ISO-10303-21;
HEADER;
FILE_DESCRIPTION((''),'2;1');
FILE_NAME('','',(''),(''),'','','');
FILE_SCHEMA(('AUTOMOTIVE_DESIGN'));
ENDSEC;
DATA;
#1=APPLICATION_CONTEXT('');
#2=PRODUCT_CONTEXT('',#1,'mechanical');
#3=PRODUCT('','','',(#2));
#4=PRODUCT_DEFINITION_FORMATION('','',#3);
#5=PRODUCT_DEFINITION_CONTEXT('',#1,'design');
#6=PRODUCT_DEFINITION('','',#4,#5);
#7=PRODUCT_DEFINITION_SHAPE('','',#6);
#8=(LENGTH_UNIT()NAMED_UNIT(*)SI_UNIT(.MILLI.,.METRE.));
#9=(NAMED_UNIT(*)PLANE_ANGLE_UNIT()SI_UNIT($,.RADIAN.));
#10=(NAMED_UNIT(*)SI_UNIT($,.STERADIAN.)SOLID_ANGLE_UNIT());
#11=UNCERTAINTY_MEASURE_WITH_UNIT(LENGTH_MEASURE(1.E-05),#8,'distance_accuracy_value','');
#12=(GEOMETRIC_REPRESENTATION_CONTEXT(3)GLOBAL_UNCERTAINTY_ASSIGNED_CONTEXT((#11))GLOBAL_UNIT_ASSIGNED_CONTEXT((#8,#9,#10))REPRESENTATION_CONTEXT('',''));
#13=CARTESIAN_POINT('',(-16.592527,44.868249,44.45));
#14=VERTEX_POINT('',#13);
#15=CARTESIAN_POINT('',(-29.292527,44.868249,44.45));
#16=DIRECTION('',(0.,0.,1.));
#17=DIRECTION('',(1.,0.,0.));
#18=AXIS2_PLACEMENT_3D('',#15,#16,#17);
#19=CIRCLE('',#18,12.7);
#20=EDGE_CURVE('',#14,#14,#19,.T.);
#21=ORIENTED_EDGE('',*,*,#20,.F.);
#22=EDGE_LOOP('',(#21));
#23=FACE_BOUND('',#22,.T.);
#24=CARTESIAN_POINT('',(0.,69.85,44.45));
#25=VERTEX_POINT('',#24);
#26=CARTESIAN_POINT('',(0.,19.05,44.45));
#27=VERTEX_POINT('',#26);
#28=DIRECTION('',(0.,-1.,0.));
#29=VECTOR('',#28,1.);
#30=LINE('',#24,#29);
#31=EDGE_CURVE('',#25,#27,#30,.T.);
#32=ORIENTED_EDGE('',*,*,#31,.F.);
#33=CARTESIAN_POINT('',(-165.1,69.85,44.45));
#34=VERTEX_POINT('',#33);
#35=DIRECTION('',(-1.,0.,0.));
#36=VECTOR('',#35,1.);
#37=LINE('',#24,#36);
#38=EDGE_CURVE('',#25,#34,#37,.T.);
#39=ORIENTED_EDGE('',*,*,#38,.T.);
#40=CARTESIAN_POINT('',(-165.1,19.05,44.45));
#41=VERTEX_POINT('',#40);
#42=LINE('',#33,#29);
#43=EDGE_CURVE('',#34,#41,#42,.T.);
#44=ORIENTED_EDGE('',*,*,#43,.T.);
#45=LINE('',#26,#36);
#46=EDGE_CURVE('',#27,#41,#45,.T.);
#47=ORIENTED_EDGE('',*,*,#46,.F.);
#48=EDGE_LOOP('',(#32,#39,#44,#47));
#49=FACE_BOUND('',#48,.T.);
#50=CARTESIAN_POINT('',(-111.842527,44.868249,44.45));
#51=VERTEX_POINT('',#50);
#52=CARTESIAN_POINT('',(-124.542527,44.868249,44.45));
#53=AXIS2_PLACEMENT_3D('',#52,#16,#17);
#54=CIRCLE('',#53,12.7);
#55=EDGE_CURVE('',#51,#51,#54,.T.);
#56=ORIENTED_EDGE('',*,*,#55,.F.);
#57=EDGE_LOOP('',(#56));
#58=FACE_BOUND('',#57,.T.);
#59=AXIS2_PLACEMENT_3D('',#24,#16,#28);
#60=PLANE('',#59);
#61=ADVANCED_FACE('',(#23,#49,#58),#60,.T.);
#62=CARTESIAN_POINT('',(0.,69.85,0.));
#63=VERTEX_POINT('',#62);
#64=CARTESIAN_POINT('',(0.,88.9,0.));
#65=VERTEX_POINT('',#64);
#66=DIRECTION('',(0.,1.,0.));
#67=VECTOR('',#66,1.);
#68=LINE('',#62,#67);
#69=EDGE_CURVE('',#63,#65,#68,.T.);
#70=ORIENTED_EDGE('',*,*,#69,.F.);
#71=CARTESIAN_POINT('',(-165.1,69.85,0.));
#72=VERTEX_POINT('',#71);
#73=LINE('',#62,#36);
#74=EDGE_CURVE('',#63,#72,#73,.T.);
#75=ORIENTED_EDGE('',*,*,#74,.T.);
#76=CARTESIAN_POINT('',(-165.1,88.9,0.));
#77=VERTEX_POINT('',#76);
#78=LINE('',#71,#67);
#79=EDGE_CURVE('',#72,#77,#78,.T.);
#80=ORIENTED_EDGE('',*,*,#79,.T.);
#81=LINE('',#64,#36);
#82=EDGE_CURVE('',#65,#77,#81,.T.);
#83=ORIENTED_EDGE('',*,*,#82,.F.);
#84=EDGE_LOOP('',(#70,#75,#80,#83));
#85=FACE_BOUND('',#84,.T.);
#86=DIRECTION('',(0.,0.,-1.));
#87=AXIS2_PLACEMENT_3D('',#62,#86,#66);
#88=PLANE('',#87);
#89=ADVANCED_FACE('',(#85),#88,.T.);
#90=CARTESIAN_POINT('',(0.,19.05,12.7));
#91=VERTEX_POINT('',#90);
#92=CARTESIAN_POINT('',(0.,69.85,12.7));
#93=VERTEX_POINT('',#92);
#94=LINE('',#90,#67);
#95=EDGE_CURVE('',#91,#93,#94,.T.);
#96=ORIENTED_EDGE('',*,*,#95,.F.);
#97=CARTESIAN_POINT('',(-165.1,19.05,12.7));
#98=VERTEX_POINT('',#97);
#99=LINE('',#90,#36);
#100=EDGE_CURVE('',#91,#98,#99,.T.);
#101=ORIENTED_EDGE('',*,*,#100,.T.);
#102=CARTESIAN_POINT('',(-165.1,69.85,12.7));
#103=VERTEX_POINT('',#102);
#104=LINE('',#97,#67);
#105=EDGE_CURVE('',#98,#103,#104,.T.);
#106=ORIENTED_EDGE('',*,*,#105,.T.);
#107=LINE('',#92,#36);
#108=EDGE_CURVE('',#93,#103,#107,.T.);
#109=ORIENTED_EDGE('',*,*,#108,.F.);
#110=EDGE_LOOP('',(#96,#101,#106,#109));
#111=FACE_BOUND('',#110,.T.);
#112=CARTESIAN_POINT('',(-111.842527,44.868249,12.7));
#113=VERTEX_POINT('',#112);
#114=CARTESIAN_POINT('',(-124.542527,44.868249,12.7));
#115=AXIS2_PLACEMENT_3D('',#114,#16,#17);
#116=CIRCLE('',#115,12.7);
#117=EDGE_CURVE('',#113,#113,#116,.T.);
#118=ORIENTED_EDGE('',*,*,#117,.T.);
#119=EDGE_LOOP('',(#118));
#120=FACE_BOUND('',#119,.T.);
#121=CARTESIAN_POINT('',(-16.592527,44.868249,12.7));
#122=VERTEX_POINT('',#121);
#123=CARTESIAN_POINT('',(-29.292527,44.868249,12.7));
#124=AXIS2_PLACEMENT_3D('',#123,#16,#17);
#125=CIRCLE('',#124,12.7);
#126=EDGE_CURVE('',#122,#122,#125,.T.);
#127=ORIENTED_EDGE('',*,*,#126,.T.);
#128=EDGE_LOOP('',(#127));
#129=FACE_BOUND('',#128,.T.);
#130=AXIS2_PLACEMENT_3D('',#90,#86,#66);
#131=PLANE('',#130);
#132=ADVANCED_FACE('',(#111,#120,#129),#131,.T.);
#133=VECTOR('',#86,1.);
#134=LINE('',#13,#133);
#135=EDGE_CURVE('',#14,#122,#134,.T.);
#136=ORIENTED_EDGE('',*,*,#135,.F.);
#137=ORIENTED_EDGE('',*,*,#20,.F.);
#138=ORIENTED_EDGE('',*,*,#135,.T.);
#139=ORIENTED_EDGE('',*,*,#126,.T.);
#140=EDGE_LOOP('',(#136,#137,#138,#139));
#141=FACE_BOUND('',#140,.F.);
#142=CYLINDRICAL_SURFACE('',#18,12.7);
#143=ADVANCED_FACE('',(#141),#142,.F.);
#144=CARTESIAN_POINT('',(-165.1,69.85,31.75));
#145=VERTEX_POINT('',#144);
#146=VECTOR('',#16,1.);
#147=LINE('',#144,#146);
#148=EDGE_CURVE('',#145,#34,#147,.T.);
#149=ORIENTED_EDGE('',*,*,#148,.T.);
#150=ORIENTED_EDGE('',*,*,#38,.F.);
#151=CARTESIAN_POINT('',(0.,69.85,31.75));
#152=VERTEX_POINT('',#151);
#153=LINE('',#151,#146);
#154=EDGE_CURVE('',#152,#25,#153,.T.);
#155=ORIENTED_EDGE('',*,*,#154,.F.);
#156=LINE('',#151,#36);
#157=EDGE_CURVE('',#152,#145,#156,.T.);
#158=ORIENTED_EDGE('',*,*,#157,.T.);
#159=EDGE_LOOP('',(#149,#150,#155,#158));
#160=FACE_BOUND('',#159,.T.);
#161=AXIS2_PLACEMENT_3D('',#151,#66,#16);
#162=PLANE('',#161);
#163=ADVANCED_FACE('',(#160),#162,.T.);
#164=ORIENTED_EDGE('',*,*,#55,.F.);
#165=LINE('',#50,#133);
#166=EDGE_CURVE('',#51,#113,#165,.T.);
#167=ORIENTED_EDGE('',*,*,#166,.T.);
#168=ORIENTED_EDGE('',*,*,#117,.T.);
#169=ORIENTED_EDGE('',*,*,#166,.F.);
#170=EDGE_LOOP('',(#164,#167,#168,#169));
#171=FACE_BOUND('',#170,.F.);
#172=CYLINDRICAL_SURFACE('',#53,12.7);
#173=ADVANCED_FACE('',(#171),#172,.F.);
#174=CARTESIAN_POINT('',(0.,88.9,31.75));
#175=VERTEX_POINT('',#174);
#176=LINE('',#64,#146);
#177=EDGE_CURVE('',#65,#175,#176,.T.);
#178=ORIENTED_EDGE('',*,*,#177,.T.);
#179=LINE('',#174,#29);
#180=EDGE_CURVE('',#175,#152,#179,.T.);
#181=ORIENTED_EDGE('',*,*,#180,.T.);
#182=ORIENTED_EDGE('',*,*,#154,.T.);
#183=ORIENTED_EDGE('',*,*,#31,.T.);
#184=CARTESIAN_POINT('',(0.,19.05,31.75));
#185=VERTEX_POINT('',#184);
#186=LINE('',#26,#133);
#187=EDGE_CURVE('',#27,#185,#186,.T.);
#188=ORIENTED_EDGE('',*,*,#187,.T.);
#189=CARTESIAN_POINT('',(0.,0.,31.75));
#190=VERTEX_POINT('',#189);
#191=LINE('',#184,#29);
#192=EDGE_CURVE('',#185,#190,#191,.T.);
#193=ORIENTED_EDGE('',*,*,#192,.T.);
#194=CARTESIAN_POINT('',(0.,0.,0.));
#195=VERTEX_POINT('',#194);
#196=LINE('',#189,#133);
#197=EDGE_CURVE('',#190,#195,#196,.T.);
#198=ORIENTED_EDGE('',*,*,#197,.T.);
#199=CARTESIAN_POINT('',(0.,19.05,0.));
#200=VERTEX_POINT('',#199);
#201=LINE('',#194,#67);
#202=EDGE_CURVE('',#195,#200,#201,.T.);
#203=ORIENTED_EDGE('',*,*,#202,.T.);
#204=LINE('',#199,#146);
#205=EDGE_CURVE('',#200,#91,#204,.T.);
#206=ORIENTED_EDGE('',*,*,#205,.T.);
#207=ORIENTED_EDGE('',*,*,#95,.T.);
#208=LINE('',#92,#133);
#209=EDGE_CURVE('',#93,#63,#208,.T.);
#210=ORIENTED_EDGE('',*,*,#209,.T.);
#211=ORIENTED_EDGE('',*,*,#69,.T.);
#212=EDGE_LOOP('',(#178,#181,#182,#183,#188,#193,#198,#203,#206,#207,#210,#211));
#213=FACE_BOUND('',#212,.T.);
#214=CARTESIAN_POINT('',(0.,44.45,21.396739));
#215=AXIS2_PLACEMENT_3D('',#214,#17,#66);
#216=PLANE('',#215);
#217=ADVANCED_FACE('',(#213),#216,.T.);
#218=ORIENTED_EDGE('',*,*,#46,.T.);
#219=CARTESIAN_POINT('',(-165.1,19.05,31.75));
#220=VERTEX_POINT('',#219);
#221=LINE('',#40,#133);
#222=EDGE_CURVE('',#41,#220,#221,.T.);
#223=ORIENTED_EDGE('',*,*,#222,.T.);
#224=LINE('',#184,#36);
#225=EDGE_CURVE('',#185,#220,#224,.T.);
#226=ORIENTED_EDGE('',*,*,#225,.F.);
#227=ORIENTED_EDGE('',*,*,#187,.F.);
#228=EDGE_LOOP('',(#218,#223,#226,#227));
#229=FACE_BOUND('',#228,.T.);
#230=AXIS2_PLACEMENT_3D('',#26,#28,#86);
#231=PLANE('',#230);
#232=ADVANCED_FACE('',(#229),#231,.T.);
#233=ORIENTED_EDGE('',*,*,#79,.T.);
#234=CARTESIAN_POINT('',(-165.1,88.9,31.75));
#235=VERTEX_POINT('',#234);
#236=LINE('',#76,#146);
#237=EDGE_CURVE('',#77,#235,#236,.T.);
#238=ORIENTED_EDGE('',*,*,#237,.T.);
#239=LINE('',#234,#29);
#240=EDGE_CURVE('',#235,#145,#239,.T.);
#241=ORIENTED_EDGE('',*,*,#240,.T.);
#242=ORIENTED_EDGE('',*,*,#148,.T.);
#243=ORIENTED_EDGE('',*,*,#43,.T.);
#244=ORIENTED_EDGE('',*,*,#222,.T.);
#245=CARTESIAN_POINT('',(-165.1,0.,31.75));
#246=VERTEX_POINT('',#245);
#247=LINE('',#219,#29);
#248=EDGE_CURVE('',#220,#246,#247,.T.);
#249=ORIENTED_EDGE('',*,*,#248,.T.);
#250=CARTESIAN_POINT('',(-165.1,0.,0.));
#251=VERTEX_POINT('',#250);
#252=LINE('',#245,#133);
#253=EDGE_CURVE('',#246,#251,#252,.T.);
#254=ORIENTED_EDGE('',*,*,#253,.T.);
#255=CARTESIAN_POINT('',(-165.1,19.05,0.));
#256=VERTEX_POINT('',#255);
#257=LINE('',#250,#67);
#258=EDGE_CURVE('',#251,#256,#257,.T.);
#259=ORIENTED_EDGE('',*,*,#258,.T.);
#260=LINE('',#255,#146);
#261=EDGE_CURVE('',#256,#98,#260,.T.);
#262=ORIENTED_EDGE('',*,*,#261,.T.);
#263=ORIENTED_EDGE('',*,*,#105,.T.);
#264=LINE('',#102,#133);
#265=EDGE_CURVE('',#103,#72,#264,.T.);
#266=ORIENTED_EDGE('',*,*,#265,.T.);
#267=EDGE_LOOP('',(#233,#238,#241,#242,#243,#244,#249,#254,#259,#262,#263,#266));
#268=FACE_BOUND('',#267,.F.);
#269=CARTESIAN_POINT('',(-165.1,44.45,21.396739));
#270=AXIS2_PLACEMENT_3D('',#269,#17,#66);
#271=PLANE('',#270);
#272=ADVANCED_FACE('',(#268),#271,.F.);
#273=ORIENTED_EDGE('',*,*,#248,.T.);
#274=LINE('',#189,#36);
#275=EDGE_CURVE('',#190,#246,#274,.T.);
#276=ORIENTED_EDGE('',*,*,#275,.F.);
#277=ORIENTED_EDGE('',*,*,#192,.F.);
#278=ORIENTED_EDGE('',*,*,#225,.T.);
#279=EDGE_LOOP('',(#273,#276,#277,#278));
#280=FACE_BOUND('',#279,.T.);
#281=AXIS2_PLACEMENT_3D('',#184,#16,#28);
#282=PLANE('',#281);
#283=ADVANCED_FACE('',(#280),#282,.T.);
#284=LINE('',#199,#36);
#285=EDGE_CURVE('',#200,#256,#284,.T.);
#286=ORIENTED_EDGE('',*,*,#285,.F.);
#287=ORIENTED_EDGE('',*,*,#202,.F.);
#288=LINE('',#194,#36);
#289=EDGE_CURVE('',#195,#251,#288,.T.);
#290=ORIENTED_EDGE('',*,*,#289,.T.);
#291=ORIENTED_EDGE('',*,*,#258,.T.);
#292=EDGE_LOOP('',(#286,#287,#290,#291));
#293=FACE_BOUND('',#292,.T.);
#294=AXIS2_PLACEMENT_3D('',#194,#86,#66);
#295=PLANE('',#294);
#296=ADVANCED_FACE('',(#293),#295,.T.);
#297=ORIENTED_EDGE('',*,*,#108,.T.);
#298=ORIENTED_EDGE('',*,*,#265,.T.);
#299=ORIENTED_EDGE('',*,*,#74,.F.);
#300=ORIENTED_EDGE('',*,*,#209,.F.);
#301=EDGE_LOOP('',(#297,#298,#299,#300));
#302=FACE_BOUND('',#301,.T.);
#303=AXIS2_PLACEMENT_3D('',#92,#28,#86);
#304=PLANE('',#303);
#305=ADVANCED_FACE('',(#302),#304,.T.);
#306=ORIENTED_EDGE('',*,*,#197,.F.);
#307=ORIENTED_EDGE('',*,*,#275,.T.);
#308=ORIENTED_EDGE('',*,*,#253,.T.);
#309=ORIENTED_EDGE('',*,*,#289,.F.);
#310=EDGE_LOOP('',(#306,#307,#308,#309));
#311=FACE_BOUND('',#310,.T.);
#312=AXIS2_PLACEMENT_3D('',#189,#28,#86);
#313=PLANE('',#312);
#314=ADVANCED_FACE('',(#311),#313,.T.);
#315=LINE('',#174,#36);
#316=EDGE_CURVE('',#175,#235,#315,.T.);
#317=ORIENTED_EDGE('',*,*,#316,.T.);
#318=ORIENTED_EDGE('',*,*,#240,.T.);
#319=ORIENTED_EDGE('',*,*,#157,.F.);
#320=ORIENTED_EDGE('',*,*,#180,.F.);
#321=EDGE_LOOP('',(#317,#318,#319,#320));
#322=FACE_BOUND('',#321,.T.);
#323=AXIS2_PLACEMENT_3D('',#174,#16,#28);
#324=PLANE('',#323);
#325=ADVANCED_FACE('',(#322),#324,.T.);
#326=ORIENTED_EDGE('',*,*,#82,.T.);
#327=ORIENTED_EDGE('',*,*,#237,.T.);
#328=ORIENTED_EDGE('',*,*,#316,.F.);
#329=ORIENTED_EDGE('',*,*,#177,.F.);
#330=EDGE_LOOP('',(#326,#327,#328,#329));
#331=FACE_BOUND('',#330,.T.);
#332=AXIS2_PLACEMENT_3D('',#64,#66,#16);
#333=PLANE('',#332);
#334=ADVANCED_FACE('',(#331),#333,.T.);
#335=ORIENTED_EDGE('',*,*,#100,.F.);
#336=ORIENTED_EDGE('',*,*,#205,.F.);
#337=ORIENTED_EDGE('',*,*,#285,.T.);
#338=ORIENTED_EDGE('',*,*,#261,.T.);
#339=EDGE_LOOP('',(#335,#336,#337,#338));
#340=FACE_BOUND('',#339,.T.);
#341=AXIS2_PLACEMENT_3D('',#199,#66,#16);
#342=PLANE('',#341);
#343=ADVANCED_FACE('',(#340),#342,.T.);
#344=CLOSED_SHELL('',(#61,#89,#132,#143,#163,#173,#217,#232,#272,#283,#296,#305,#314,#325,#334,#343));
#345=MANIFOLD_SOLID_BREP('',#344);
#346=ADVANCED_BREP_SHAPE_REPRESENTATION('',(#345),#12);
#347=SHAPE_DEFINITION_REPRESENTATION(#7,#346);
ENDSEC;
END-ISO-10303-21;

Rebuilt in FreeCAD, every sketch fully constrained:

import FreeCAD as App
import Part
import Sketcher
Q = App.Units.Quantity

doc = App.newDocument("Part")
params = doc.addObject("Spreadsheet::Sheet", "Params")
for row, (alias, value) in enumerate([
    ("sketch1_width", "2 in"),
    ("sketch1_height", "0.5 in"),
    ("sketch1_width2", "0.75 in"),
    ("sketch1_height2", "1.25 in"),
    ("pad1_length", "6.5 in"),
    ("sketch2_diameter", "1 in"),
    ("pocket1_length", "4 in"),
], start=1):
    params.set(f"A{row}", alias)
    params.set(f"B{row}", "=" + value)
    params.setAlias(f"B{row}", alias)

body = doc.addObject("PartDesign::Body", "Body")

# Sketch on YZ plane
sketch1 = body.newObject("Sketcher::SketchObject", "Sketch")
sketch1.AttachmentSupport = (doc.getObject("YZ_Plane"), [""])
sketch1.MapMode = "FlatFace"
sketch1.addGeometry([
    Part.LineSegment(App.Vector(0, 31.75, 0), App.Vector(0, 0, 0)),  # 0
    Part.LineSegment(App.Vector(0, 0, 0), App.Vector(19.05, 0, 0)),  # 1
    Part.LineSegment(App.Vector(19.05, 0, 0), App.Vector(19.05, 12.7, 0)),  # 2
    Part.LineSegment(App.Vector(19.05, 12.7, 0), App.Vector(69.85, 12.7, 0)),  # 3
    Part.LineSegment(App.Vector(69.85, 12.7, 0), App.Vector(69.85, 0, 0)),  # 4
    Part.LineSegment(App.Vector(69.85, 0, 0), App.Vector(88.9, 0, 0)),  # 5
    Part.LineSegment(App.Vector(88.9, 0, 0), App.Vector(88.9, 31.75, 0)),  # 6
    Part.LineSegment(App.Vector(88.9, 31.75, 0), App.Vector(69.85, 31.75, 0)),  # 7
    Part.LineSegment(App.Vector(69.85, 31.75, 0), App.Vector(69.85, 44.45, 0)),  # 8
    Part.LineSegment(App.Vector(69.85, 44.45, 0), App.Vector(19.05, 44.45, 0)),  # 9
    Part.LineSegment(App.Vector(19.05, 44.45, 0), App.Vector(19.05, 31.75, 0)),  # 10
    Part.LineSegment(App.Vector(19.05, 31.75, 0), App.Vector(0, 31.75, 0)),  # 11
], False)
sketch1.addConstraint([
    Sketcher.Constraint("Coincident", 0, 2, 1, 1),
    Sketcher.Constraint("Coincident", 1, 2, 2, 1),
    Sketcher.Constraint("Coincident", 2, 2, 3, 1),
    Sketcher.Constraint("Coincident", 3, 2, 4, 1),
    Sketcher.Constraint("Coincident", 4, 2, 5, 1),
    Sketcher.Constraint("Coincident", 5, 2, 6, 1),
    Sketcher.Constraint("Coincident", 6, 2, 7, 1),
    Sketcher.Constraint("Coincident", 7, 2, 8, 1),
    Sketcher.Constraint("Coincident", 8, 2, 9, 1),
    Sketcher.Constraint("Coincident", 9, 2, 10, 1),
    Sketcher.Constraint("Coincident", 10, 2, 11, 1),
    Sketcher.Constraint("Coincident", 11, 2, 0, 1),
    Sketcher.Constraint("Vertical", 0),
    Sketcher.Constraint("Horizontal", 1),
    Sketcher.Constraint("Vertical", 2),
    Sketcher.Constraint("Horizontal", 3),
    Sketcher.Constraint("Vertical", 4),
    Sketcher.Constraint("Horizontal", 5),
    Sketcher.Constraint("Vertical", 6),
    Sketcher.Constraint("Horizontal", 7),
    Sketcher.Constraint("Vertical", 8),
    Sketcher.Constraint("Horizontal", 9),
    Sketcher.Constraint("Vertical", 10),
    Sketcher.Constraint("Horizontal", 11),
    Sketcher.Constraint("Coincident", 0, 2, -1, 1),
    Sketcher.Constraint("PointOnObject", 4, 2, -1),
    Sketcher.Constraint("Horizontal", 7, 2, 10, 2),
    Sketcher.Constraint("Vertical", 4, 2, 7, 2),
    Sketcher.Constraint("Vertical", 2, 2, 9, 2),
    Sketcher.Constraint("Equal", 1, 5),
    Sketcher.Constraint("Equal", 4, 8),
    Sketcher.Constraint("DistanceX", 3, 1, 3, 2, Q("2 in")),
    Sketcher.Constraint("DistanceY", 2, 1, 2, 2, Q("0.5 in")),
    Sketcher.Constraint("DistanceX", 1, 1, 1, 2, Q("0.75 in")),
    Sketcher.Constraint("DistanceY", 0, 2, 0, 1, Q("1.25 in")),
])
sketch1.setExpression("Constraints[31]", "Params.sketch1_width")
sketch1.setExpression("Constraints[32]", "Params.sketch1_height")
sketch1.setExpression("Constraints[33]", "Params.sketch1_width2")
sketch1.setExpression("Constraints[34]", "Params.sketch1_height2")
pad1 = body.newObject("PartDesign::Pad", "Pad")
pad1.Profile = sketch1
pad1.setExpression("Length", "Params.pad1_length")
pad1.Reversed = True

# Sketch on XY plane
sketch2 = body.newObject("Sketcher::SketchObject", "Sketch001")
sketch2.AttachmentSupport = (doc.getObject("XY_Plane"), [""])
sketch2.MapMode = "FlatFace"
sketch2.AttachmentOffset = App.Placement(App.Vector(0, 0, 1.75 * 25.4), App.Rotation())
sketch2.addGeometry([
    Part.Circle(App.Vector(-29.292527, 44.868249, 0), App.Vector(0, 0, 1), 12.7),
    Part.Circle(App.Vector(-124.542527, 44.868249, 0), App.Vector(0, 0, 1), 12.7),
], False)
sketch2.addConstraint([
    Sketcher.Constraint("Equal", 0, 1),
    Sketcher.Constraint("Horizontal", 0, 3, 1, 3),
    Sketcher.Constraint("Diameter", 0, Q("1 in")),
    Sketcher.Constraint("DistanceX", 1, 3, 0, 3, Q("3.75 in")),
    Sketcher.Constraint("DistanceY", -1, 1, 0, 3, Q("44.868249 mm")),
    Sketcher.Constraint("DistanceX", 0, 3, -1, 1, Q("29.292527 mm")),
])
sketch2.setExpression("Constraints[2]", "Params.sketch2_diameter")
pocket1 = body.newObject("PartDesign::Pocket", "Pocket")
pocket1.Profile = sketch2
pocket1.setExpression("Length", "Params.pocket1_length")

doc.recompute()
